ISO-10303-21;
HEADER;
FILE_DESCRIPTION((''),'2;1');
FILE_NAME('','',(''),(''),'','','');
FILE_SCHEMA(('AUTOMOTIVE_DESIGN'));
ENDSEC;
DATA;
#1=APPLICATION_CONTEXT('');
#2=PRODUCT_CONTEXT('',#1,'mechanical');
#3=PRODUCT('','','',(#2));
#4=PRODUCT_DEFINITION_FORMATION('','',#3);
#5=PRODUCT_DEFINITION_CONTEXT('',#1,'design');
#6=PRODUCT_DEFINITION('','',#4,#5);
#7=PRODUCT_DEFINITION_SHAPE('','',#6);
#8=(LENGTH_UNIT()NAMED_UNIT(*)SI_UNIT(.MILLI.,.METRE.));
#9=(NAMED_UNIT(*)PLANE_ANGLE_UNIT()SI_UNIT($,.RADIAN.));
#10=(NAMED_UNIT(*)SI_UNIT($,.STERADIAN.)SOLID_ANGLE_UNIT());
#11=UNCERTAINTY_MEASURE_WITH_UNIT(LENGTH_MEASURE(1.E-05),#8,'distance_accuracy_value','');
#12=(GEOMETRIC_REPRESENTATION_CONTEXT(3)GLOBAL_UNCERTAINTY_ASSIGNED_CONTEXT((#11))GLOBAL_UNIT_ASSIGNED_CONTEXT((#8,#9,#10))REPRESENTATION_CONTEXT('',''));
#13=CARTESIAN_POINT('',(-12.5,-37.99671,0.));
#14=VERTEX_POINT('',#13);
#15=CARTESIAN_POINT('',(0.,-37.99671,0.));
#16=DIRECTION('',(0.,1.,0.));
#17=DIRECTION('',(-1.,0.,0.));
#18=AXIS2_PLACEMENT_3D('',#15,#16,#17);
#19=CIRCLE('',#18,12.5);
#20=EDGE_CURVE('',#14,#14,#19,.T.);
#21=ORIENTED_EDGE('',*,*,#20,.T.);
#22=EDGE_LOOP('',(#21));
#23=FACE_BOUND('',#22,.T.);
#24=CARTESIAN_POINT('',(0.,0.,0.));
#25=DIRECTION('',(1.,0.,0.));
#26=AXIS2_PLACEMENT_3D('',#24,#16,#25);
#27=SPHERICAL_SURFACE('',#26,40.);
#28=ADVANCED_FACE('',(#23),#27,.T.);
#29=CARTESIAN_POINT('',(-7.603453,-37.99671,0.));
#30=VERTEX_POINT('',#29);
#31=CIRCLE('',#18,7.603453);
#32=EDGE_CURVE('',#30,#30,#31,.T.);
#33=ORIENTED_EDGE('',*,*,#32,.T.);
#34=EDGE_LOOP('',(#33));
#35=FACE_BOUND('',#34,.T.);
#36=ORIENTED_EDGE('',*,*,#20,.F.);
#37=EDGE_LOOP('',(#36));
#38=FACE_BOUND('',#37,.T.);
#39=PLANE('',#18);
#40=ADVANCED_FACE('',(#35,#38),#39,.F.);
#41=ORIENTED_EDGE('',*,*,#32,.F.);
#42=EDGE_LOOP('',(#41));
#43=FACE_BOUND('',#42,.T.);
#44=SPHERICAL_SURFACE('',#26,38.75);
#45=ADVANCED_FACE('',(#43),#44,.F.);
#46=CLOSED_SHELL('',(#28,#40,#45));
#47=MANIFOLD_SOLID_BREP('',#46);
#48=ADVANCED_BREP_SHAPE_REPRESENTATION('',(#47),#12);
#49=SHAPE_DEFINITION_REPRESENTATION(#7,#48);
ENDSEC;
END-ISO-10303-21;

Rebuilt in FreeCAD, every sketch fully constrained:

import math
import FreeCAD as App
import Part
import Sketcher

V = App.Vector


def faces_at(feature, points):
    """Names of the faces that lie closest to the given points."""
    faces = feature.Shape.Faces
    near = lambda p: min(range(len(faces)), key=lambda i: faces[i].distToShape(Part.Vertex(*p))[0])
    return sorted({f"Face{near(p) + 1}" for p in points})

doc = App.newDocument("Part")
body = doc.addObject("PartDesign::Body", "Body")

sketch1 = doc.addObject("Sketcher::SketchObject", "Sketch")
body.addObject(sketch1)
sketch1.AttachmentSupport = (doc.XY_Plane, [""])
sketch1.MapMode = "FlatFace"
sketch1.addGeometry(Part.LineSegment(V(0, 40, 0), V(0, -38, 0)), False)
sketch1.addGeometry(Part.LineSegment(V(0, -38, 0), V(12, -38, 0)), False)
sketch1.addGeometry(Part.ArcOfCircle(Part.Circle(V(0, 0, 0), V(0, 0, 1), 40), math.radians(-72), math.radians(90)), False)
sketch1.addConstraint(Sketcher.Constraint("Coincident", 0, 2, 1, 1))
sketch1.addConstraint(Sketcher.Constraint("Coincident", 1, 2, 2, 1))
sketch1.addConstraint(Sketcher.Constraint("Coincident", 2, 2, 0, 1))
sketch1.addConstraint(Sketcher.Constraint("Vertical", 0))
sketch1.addConstraint(Sketcher.Constraint("Horizontal", 1))
sketch1.addConstraint(Sketcher.Constraint("Coincident", 2, 3, -1, 1))
sketch1.addConstraint(Sketcher.Constraint("PointOnObject", 0, 2, -2))
sketch1.addConstraint(Sketcher.Constraint("Radius", 2, 40.0))
sketch1.addConstraint(Sketcher.Constraint("DistanceX", 1, 1, 1, 2, 12.5))
revolution = doc.addObject("PartDesign::Revolution", "Revolution")
body.addObject(revolution)
revolution.Profile = sketch1
revolution.ReferenceAxis = (sketch1, ["V_Axis"])
revolution.Angle = 360
doc.recompute()

thickness = doc.addObject("PartDesign::Thickness", "Thickness")
body.addObject(thickness)
thickness.Base = (revolution, faces_at(revolution, [(0, -37.997, 0)]))
thickness.Value = 1.25
thickness.Reversed = True
thickness.Join = "Intersection"

doc.recompute()
